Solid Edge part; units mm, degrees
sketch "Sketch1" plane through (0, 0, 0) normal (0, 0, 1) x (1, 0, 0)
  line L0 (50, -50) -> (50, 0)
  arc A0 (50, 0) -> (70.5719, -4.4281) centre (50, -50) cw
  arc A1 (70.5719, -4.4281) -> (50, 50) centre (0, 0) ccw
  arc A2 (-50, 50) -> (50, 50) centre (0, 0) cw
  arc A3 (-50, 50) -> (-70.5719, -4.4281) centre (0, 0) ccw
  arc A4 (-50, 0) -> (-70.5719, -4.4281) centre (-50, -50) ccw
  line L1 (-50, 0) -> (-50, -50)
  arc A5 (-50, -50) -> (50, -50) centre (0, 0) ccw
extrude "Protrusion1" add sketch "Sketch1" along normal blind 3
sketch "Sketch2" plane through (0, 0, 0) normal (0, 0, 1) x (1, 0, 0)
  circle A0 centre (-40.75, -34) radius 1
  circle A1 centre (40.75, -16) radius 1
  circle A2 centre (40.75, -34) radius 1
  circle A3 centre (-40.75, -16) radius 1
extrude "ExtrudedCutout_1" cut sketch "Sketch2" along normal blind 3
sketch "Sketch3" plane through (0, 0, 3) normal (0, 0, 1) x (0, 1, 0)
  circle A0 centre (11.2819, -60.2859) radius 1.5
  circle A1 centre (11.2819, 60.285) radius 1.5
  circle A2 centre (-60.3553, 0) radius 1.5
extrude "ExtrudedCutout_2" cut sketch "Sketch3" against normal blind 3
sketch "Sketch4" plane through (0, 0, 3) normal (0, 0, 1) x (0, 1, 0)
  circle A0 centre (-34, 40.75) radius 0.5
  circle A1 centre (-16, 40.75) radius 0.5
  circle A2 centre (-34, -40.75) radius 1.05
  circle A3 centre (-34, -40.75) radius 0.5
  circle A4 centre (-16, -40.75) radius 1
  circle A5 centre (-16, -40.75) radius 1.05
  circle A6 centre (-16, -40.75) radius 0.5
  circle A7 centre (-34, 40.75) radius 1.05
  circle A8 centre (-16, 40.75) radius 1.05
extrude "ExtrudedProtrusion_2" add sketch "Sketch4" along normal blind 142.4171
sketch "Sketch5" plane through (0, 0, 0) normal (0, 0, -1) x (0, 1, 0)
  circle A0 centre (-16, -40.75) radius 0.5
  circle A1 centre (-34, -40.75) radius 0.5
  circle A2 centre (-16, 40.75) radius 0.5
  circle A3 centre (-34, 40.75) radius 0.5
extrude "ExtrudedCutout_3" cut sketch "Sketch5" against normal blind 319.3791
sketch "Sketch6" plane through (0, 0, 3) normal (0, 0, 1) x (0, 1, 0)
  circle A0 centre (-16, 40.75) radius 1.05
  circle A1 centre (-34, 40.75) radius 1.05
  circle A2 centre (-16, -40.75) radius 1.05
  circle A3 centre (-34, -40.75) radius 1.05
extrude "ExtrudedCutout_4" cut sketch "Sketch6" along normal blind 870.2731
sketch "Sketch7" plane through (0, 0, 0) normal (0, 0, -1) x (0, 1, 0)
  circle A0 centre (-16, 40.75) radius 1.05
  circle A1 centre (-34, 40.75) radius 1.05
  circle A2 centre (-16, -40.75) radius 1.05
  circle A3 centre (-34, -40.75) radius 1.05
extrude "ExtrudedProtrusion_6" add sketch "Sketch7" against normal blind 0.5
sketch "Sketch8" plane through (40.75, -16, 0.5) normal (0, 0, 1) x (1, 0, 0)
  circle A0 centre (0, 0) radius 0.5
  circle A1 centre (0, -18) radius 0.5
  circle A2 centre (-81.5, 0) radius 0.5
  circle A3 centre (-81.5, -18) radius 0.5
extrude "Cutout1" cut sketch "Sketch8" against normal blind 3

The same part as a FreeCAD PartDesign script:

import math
import FreeCAD as App
import Part
import Sketcher
Q = App.Units.Quantity

doc = App.newDocument("Part")
body = doc.addObject("PartDesign::Body", "Body")
body.AllowCompound = True

# Sketch on XY plane
sketch1 = body.newObject("Sketcher::SketchObject", "Sketch")
sketch1.AttachmentSupport = (doc.getObject("XY_Plane"), [""])
sketch1.MapMode = "FlatFace"
sketch1.addGeometry([
    Part.ArcOfCircle(Part.Circle(App.Vector(0, 0, 0), App.Vector(0, 0, 1), 71), math.radians(-135), math.radians(-45)),  # 0
    Part.LineSegment(App.Vector(50, -50, 0), App.Vector(50, 0, 0)),  # 1
    Part.ArcOfCircle(Part.Circle(App.Vector(50, -50, 0), App.Vector(0, 0, 1), 50), math.radians(66), math.radians(90)),  # 2
    Part.ArcOfCircle(Part.Circle(App.Vector(0, 0, 0), App.Vector(0, 0, 1), 71), math.radians(-4), math.radians(45)),  # 3
    Part.ArcOfCircle(Part.Circle(App.Vector(0, 0, 0), App.Vector(0, 0, 1), 71), math.radians(45), math.radians(135)),  # 4
    Part.ArcOfCircle(Part.Circle(App.Vector(0, 0, 0), App.Vector(0, 0, 1), 71), math.radians(135), math.radians(184)),  # 5
    Part.ArcOfCircle(Part.Circle(App.Vector(-50, -50, 0), App.Vector(0, 0, 1), 50), math.radians(90), math.radians(114)),  # 6
    Part.LineSegment(App.Vector(-50, 0, 0), App.Vector(-50, -50, 0)),  # 7
], False)
sketch1.addConstraint([
    Sketcher.Constraint("Coincident", 0, 2, 1, 1),
    Sketcher.Constraint("Coincident", 1, 2, 2, 2),
    Sketcher.Constraint("Coincident", 2, 1, 3, 1),
    Sketcher.Constraint("Tangent", 3, 2, 4, 1),
    Sketcher.Constraint("Tangent", 4, 2, 5, 1),
    Sketcher.Constraint("Coincident", 5, 2, 6, 2),
    Sketcher.Constraint("Coincident", 6, 1, 7, 1),
    Sketcher.Constraint("Coincident", 7, 2, 0, 1),
    Sketcher.Constraint("Vertical", 1),
    Sketcher.Constraint("Vertical", 7),
    Sketcher.Constraint("Coincident", 0, 3, -1, 1),
    Sketcher.Constraint("Coincident", 3, 3, -1, 1),
    Sketcher.Constraint("Coincident", 5, 3, -1, 1),
    Sketcher.Constraint("Coincident", 0, 2, 2, 3),
    Sketcher.Constraint("Coincident", 7, 2, 6, 3),
    Sketcher.Constraint("Equal", 0, 3),
    Sketcher.Constraint("Equal", 2, 6),
    Sketcher.Constraint("Symmetric", 1, 2, 6, 1, -1, 1),
    Sketcher.Constraint("Horizontal", 3, 2, 4, 2),
    Sketcher.Constraint("Vertical", 1, 2, 3, 2),
    Sketcher.Constraint("Radius", 2, Q("50 mm")),
    Sketcher.Constraint("DistanceX", -1, 1, 2, 3, Q("50 mm")),
])
pad1 = body.newObject("PartDesign::Pad", "Pad")
pad1.Profile = sketch1
pad1.Length = 3

# Sketch on XY plane
sketch2 = body.newObject("Sketcher::SketchObject", "Sketch001")
sketch2.AttachmentSupport = (doc.getObject("XY_Plane"), [""])
sketch2.MapMode = "FlatFace"
sketch2.addGeometry([
    Part.Circle(App.Vector(-40.8, -34, 0), App.Vector(0, 0, 1), 1),
    Part.Circle(App.Vector(40.8, -16, 0), App.Vector(0, 0, 1), 1),
    Part.Circle(App.Vector(40.8, -34, 0), App.Vector(0, 0, 1), 1),
    Part.Circle(App.Vector(-40.8, -16, 0), App.Vector(0, 0, 1), 1),
], False)
sketch2.addConstraint([
    Sketcher.Constraint("Equal", 0, 1),
    Sketcher.Constraint("Equal", 1, 2),
    Sketcher.Constraint("Equal", 2, 3),
    Sketcher.Constraint("Symmetric", 0, 3, 2, 3, -2),
    Sketcher.Constraint("Symmetric", 1, 3, 3, 3, -2),
    Sketcher.Constraint("Vertical", 1, 3, 2, 3),
    Sketcher.Constraint("Diameter", 0, Q("2 mm")),
    Sketcher.Constraint("DistanceY", 0, 3, -1, 1, Q("34 mm")),
    Sketcher.Constraint("DistanceY", 1, 3, -1, 1, Q("16 mm")),
    Sketcher.Constraint("DistanceX", 0, 3, 1, 3, Q("81.5 mm")),
])
pocket1 = body.newObject("PartDesign::Pocket", "Pocket")
pocket1.Profile = sketch2
pocket1.Length = 3
pocket1.Reversed = True

# Sketch on XY plane
sketch3 = body.newObject("Sketcher::SketchObject", "Sketch002")
sketch3.AttachmentSupport = (doc.getObject("XY_Plane"), [""])
sketch3.MapMode = "FlatFace"
sketch3.AttachmentOffset = App.Placement(App.Vector(0, 0, 3), App.Rotation())
sketch3.addGeometry([
    Part.Circle(App.Vector(60.3, 11.3, 0), App.Vector(0, 0, 1), 1.5),
    Part.Circle(App.Vector(-60.3, 11.3, 0), App.Vector(0, 0, 1), 1.5),
    Part.Circle(App.Vector(0, -60.4, 0), App.Vector(0, 0, 1), 1.5),
], False)
sketch3.addConstraint([
    Sketcher.Constraint("Equal", 0, 1),
    Sketcher.Constraint("Equal", 1, 2),
    Sketcher.Constraint("PointOnObject", 2, 3, -2),
    Sketcher.Constraint("Horizontal", 0, 3, 1, 3),
    Sketcher.Constraint("Diameter", 0, Q("3 mm")),
    Sketcher.Constraint("DistanceX", -1, 1, 0, 3, Q("60.286 mm")),
    Sketcher.Constraint("DistanceY", -1, 1, 0, 3, Q("11.282 mm")),
    Sketcher.Constraint("DistanceX", 1, 3, -1, 1, Q("60.285 mm")),
    Sketcher.Constraint("DistanceY", 2, 3, -1, 1, Q("60.3553 mm")),
])
pocket2 = body.newObject("PartDesign::Pocket", "Pocket001")
pocket2.Profile = sketch3
pocket2.Length = 3

# Sketch on XY plane
sketch4 = body.newObject("Sketcher::SketchObject", "Sketch003")
sketch4.AttachmentSupport = (doc.getObject("XY_Plane"), [""])
sketch4.MapMode = "FlatFace"
sketch4.AttachmentOffset = App.Placement(App.Vector(0, 0, 3), App.Rotation())
sketch4.addGeometry([
    Part.Circle(App.Vector(40.8, -34, 0), App.Vector(0, 0, 1), 1.1),  # 0
    Part.Circle(App.Vector(40.8, -34, 0), App.Vector(0, 0, 1), 0.5),  # 1
    Part.Circle(App.Vector(40.8, -16, 0), App.Vector(0, 0, 1), 1.1),  # 2
    Part.Circle(App.Vector(40.8, -16, 0), App.Vector(0, 0, 1), 1),  # 3
    Part.Circle(App.Vector(40.8, -16, 0), App.Vector(0, 0, 1), 0.5),  # 4
    Part.Circle(App.Vector(-40.8, -34, 0), App.Vector(0, 0, 1), 1.1),  # 5
    Part.Circle(App.Vector(-40.8, -34, 0), App.Vector(0, 0, 1), 0.5),  # 6
    Part.Circle(App.Vector(-40.8, -16, 0), App.Vector(0, 0, 1), 1.1),  # 7
    Part.Circle(App.Vector(-40.8, -16, 0), App.Vector(0, 0, 1), 0.5),  # 8
], False)
sketch4.addConstraint([
    Sketcher.Constraint("Coincident", 1, 3, 0, 3),
    Sketcher.Constraint("Coincident", 3, 3, 2, 3),
    Sketcher.Constraint("Coincident", 4, 3, 2, 3),
    Sketcher.Constraint("Coincident", 6, 3, 5, 3),
    Sketcher.Constraint("Coincident", 8, 3, 7, 3),
    Sketcher.Constraint("Equal", 0, 2),
    Sketcher.Constraint("Equal", 1, 4),
    Sketcher.Constraint("Equal", 2, 5),
    Sketcher.Constraint("Equal", 4, 6),
    Sketcher.Constraint("Equal", 5, 7),
    Sketcher.Constraint("Equal", 6, 8),
    Sketcher.Constraint("Symmetric", 0, 3, 5, 3, -2),
    Sketcher.Constraint("Symmetric", 2, 3, 7, 3, -2),
    Sketcher.Constraint("Vertical", 1, 3, 2, 3),
    Sketcher.Constraint("Diameter", 1, Q("1 mm")),
    Sketcher.Constraint("Diameter", 3, Q("2 mm")),
    Sketcher.Constraint("Diameter", 0, Q("2.1 mm")),
    Sketcher.Constraint("DistanceY", 0, 3, -1, 1, Q("34 mm")),
    Sketcher.Constraint("DistanceY", 2, 3, -1, 1, Q("16 mm")),
    Sketcher.Constraint("DistanceX", 5, 3, 0, 3, Q("81.5 mm")),
])
pad2 = body.newObject("PartDesign::Pad", "Pad001")
pad2.Profile = sketch4
pad2.Length = 142.4171

# Sketch on XY plane
sketch5 = body.newObject("Sketcher::SketchObject", "Sketch004")
sketch5.AttachmentSupport = (doc.getObject("XY_Plane"), [""])
sketch5.MapMode = "FlatFace"
sketch5.addGeometry([
    Part.Circle(App.Vector(-40.8, -16, 0), App.Vector(0, 0, 1), 0.5),
    Part.Circle(App.Vector(-40.8, -34, 0), App.Vector(0, 0, 1), 0.5),
    Part.Circle(App.Vector(40.8, -16, 0), App.Vector(0, 0, 1), 0.5),
    Part.Circle(App.Vector(40.8, -34, 0), App.Vector(0, 0, 1), 0.5),
], False)
sketch5.addConstraint([
    Sketcher.Constraint("Equal", 0, 1),
    Sketcher.Constraint("Equal", 1, 2),
    Sketcher.Constraint("Equal", 2, 3),
    Sketcher.Constraint("Symmetric", 0, 3, 2, 3, -2),
    Sketcher.Constraint("Symmetric", 1, 3, 3, 3, -2),
    Sketcher.Constraint("Vertical", 0, 3, 1, 3),
    Sketcher.Constraint("Diameter", 0, Q("1 mm")),
    Sketcher.Constraint("DistanceY", 0, 3, -1, 1, Q("16 mm")),
    Sketcher.Constraint("DistanceY", 1, 3, -1, 1, Q("34 mm")),
    Sketcher.Constraint("DistanceX", 0, 3, 2, 3, Q("81.5 mm")),
])
pocket3 = body.newObject("PartDesign::Pocket", "Pocket002")
pocket3.Profile = sketch5
pocket3.Length = 319.3791
pocket3.Reversed = True

# Sketch on XY plane
sketch6 = body.newObject("Sketcher::SketchObject", "Sketch005")
sketch6.AttachmentSupport = (doc.getObject("XY_Plane"), [""])
sketch6.MapMode = "FlatFace"
sketch6.AttachmentOffset = App.Placement(App.Vector(0, 0, 3), App.Rotation())
sketch6.addGeometry([
    Part.Circle(App.Vector(-40.8, -16, 0), App.Vector(0, 0, 1), 1.1),
    Part.Circle(App.Vector(-40.8, -34, 0), App.Vector(0, 0, 1), 1.1),
    Part.Circle(App.Vector(40.8, -16, 0), App.Vector(0, 0, 1), 1.1),
    Part.Circle(App.Vector(40.8, -34, 0), App.Vector(0, 0, 1), 1.1),
], False)
sketch6.addConstraint([
    Sketcher.Constraint("Equal", 0, 1),
    Sketcher.Constraint("Equal", 1, 2),
    Sketcher.Constraint("Equal", 2, 3),
    Sketcher.Constraint("Symmetric", 0, 3, 2, 3, -2),
    Sketcher.Constraint("Symmetric", 1, 3, 3, 3, -2),
    Sketcher.Constraint("Vertical", 0, 3, 1, 3),
    Sketcher.Constraint("Diameter", 0, Q("2.1 mm")),
    Sketcher.Constraint("DistanceY", 0, 3, -1, 1, Q("16 mm")),
    Sketcher.Constraint("DistanceY", 1, 3, -1, 1, Q("34 mm")),
    Sketcher.Constraint("DistanceX", 0, 3, 2, 3, Q("81.5 mm")),
])
pocket4 = body.newObject("PartDesign::Pocket", "Pocket003")
pocket4.Profile = sketch6
pocket4.Length = 870.2731
pocket4.Reversed = True

# Sketch on XY plane
sketch7 = body.newObject("Sketcher::SketchObject", "Sketch006")
sketch7.AttachmentSupport = (doc.getObject("XY_Plane"), [""])
sketch7.MapMode = "FlatFace"
sketch7.addGeometry([
    Part.Circle(App.Vector(40.8, -16, 0), App.Vector(0, 0, 1), 1.1),
    Part.Circle(App.Vector(40.8, -34, 0), App.Vector(0, 0, 1), 1.1),
    Part.Circle(App.Vector(-40.8, -16, 0), App.Vector(0, 0, 1), 1.1),
    Part.Circle(App.Vector(-40.8, -34, 0), App.Vector(0, 0, 1), 1.1),
], False)
sketch7.addConstraint([
    Sketcher.Constraint("Equal", 0, 1),
    Sketcher.Constraint("Equal", 1, 2),
    Sketcher.Constraint("Equal", 2, 3),
    Sketcher.Constraint("Symmetric", 0, 3, 2, 3, -2),
    Sketcher.Constraint("Symmetric", 1, 3, 3, 3, -2),
    Sketcher.Constraint("Vertical", 0, 3, 1, 3),
    Sketcher.Constraint("Diameter", 0, Q("2.1 mm")),
    Sketcher.Constraint("DistanceY", 0, 3, -1, 1, Q("16 mm")),
    Sketcher.Constraint("DistanceY", 1, 3, -1, 1, Q("34 mm")),
    Sketcher.Constraint("DistanceX", 2, 3, 0, 3, Q("81.5 mm")),
])
pad3 = body.newObject("PartDesign::Pad", "Pad002")
pad3.Profile = sketch7
pad3.Length = 0.5

# Sketch on XY plane
sketch8 = body.newObject("Sketcher::SketchObject", "Sketch007")
sketch8.AttachmentSupport = (doc.getObject("XY_Plane"), [""])
sketch8.MapMode = "FlatFace"
sketch8.AttachmentOffset = App.Placement(App.Vector(0, 0, 0.5), App.Rotation())
sketch8.addGeometry([
    Part.Circle(App.Vector(40.8, -16, 0), App.Vector(0, 0, 1), 0.5),
    Part.Circle(App.Vector(40.8, -34, 0), App.Vector(0, 0, 1), 0.5),
    Part.Circle(App.Vector(-40.8, -16, 0), App.Vector(0, 0, 1), 0.5),
    Part.Circle(App.Vector(-40.8, -34, 0), App.Vector(0, 0, 1), 0.5),
], False)
sketch8.addConstraint([
    Sketcher.Constraint("Equal", 0, 1),
    Sketcher.Constraint("Equal", 1, 2),
    Sketcher.Constraint("Equal", 2, 3),
    Sketcher.Constraint("Symmetric", 0, 3, 2, 3, -2),
    Sketcher.Constraint("Symmetric", 1, 3, 3, 3, -2),
    Sketcher.Constraint("Vertical", 0, 3, 1, 3),
    Sketcher.Constraint("Diameter", 0, Q("1 mm")),
    Sketcher.Constraint("DistanceY", 0, 3, -1, 1, Q("16 mm")),
    Sketcher.Constraint("DistanceY", 1, 3, -1, 1, Q("34 mm")),
    Sketcher.Constraint("DistanceX", 2, 3, 0, 3, Q("81.5 mm")),
])
pocket5 = body.newObject("PartDesign::Pocket", "Pocket004")
pocket5.Profile = sketch8
pocket5.Length = 3

doc.recompute()
